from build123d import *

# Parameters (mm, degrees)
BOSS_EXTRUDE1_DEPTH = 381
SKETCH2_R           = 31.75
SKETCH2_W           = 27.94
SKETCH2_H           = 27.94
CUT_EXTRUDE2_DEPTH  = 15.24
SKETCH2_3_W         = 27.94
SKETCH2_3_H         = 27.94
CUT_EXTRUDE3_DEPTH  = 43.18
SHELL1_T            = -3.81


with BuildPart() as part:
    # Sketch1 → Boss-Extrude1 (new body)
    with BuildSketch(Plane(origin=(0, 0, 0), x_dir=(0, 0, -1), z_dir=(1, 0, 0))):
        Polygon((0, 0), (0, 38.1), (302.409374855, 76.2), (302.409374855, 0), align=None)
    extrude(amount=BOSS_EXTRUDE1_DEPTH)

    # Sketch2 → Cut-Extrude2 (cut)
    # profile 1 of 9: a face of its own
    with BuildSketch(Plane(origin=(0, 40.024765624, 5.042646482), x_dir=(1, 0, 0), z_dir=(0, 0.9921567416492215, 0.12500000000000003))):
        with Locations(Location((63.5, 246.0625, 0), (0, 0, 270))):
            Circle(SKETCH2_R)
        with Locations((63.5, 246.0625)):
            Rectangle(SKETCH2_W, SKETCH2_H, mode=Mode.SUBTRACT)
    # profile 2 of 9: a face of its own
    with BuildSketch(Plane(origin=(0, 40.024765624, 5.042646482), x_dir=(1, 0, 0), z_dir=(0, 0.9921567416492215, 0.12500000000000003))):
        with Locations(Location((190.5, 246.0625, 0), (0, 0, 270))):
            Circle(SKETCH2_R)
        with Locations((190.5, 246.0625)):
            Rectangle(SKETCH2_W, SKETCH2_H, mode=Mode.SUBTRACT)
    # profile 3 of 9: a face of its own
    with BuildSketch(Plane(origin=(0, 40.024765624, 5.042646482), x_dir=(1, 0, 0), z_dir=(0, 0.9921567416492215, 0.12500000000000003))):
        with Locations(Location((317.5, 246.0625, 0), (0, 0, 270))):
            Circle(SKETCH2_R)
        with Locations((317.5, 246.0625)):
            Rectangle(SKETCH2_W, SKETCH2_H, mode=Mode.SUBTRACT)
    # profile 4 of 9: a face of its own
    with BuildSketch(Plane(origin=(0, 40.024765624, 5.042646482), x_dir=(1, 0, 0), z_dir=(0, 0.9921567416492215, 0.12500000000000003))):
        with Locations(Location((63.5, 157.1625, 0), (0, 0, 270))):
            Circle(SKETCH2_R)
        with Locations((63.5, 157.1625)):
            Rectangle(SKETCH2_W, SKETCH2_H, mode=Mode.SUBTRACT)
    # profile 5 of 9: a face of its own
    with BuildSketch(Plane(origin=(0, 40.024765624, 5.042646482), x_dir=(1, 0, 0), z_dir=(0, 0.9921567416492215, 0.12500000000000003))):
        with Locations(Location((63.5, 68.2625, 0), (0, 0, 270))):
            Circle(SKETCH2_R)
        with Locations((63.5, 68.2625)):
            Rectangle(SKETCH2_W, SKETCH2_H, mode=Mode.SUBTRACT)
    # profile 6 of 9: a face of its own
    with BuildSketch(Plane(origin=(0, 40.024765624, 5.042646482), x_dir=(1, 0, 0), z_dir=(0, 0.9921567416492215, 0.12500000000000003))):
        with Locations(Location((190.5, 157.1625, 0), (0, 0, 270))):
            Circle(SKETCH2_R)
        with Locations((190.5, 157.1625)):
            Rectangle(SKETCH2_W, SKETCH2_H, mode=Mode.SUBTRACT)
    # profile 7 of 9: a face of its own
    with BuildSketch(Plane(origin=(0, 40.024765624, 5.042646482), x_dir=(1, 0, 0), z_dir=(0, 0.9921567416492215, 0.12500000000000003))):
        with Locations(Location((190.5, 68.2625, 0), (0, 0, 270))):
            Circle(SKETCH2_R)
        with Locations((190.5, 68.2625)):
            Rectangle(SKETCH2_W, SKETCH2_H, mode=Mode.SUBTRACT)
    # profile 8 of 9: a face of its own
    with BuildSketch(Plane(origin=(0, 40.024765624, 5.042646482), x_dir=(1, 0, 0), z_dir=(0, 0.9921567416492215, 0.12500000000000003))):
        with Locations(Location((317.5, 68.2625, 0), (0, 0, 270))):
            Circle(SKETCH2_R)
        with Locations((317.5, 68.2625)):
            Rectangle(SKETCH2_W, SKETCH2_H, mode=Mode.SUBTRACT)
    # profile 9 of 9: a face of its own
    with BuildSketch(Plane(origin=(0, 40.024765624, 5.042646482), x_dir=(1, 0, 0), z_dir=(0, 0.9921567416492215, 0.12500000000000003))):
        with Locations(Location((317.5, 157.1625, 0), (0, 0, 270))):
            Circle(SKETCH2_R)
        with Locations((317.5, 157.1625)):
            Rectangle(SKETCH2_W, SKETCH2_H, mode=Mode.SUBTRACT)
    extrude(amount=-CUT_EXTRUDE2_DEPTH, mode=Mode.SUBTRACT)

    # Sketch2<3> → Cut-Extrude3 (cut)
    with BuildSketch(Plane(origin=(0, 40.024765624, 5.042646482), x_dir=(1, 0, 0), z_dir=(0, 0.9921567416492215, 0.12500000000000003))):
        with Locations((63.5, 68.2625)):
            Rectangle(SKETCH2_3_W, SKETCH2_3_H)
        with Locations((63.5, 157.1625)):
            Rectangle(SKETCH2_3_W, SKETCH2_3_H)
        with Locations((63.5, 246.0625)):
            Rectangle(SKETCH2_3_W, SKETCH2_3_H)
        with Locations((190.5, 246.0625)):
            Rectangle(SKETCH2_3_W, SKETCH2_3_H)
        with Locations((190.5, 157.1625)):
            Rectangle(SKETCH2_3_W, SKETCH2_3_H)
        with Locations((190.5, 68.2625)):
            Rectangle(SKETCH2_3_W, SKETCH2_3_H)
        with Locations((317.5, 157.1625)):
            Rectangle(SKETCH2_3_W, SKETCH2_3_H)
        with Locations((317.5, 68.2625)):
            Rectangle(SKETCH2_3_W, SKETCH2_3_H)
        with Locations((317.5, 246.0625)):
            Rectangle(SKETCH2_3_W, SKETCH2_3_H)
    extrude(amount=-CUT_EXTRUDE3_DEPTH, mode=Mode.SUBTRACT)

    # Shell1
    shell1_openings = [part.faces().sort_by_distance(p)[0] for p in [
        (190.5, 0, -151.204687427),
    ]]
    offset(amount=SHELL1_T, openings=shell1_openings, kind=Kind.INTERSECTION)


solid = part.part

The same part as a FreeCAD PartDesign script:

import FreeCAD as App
import Part
import Sketcher
Q = App.Units.Quantity


def faces_at(feature, points):
    """Names of the faces that lie closest to the given points."""
    faces = feature.Shape.Faces
    near = lambda p: min(range(len(faces)), key=lambda i: faces[i].distToShape(Part.Vertex(*p))[0])
    return sorted({f"Face{near(p) + 1}" for p in points})


def add_polygon(sketch, points):
    """Adds a closed chain of lines whose ends are joined by coincident constraints."""
    first, n = sketch.GeometryCount, len(points)
    for a, b in zip(points, points[1:] + points[:1]):
        sketch.addGeometry(Part.LineSegment(App.Vector(*a, 0), App.Vector(*b, 0)), False)
    for i in range(n):
        sketch.addConstraint(Sketcher.Constraint("Coincident", first + i, 2, first + (i + 1) % n, 1))

doc = App.newDocument("Part")
body = doc.addObject("PartDesign::Body", "Body")

sketch1 = doc.addObject("Sketcher::SketchObject", "Sketch")
body.addObject(sketch1)
sketch1.AttachmentSupport = (doc.YZ_Plane, [""])
sketch1.MapMode = "FlatFace"
add_polygon(sketch1, [(38, 0), (0, 0), (0, -302), (76, -302)])
sketch1.addConstraint([
    Sketcher.Constraint("Horizontal", 0),
    Sketcher.Constraint("Vertical", 1),
    Sketcher.Constraint("Horizontal", 2),
    Sketcher.Constraint("Coincident", 0, 2, -1, 1),
    Sketcher.Constraint("DistanceX", 2, 1, 2, 2, Q("3 in")),
    Sketcher.Constraint("Distance", 3, Q("12 in")),
    Sketcher.Constraint("DistanceX", 0, 2, 0, 1, Q("1.5 in")),
])
pad1 = doc.addObject("PartDesign::Pad", "Pad")
body.addObject(pad1)
pad1.Profile = sketch1
pad1.Length = Q("15 in")

sketch2 = doc.addObject("Sketcher::SketchObject", "Sketch001")
body.addObject(sketch2)
sketch2.Placement = App.Placement(App.Vector(0, 40.024766, 5.042646), App.Rotation(App.Vector(1, 0, 0), App.Vector(0, 0.125, -0.992156742), App.Vector(0, 0.992156742, 0.125), "ZXY"))
sketch2.addGeometry(Part.Circle(App.Vector(64, 246, 0), App.Vector(0, 0, 1), 32), False)
add_polygon(sketch2, [(77, 232), (50, 232), (50, 260), (77, 260)])
sketch2.addGeometry(Part.Circle(App.Vector(190, 246, 0), App.Vector(0, 0, 1), 32), False)
add_polygon(sketch2, [(204, 232), (177, 232), (177, 260), (204, 260)])
sketch2.addGeometry(Part.Circle(App.Vector(318, 246, 0), App.Vector(0, 0, 1), 32), False)
add_polygon(sketch2, [(331, 232), (304, 232), (304, 260), (331, 260)])
sketch2.addGeometry(Part.Circle(App.Vector(64, 157, 0), App.Vector(0, 0, 1), 32), False)
add_polygon(sketch2, [(77, 143), (50, 143), (50, 171), (77, 171)])
sketch2.addGeometry(Part.Circle(App.Vector(64, 68, 0), App.Vector(0, 0, 1), 32), False)
add_polygon(sketch2, [(77, 54), (50, 54), (50, 82), (77, 82)])
sketch2.addGeometry(Part.Circle(App.Vector(190, 157, 0), App.Vector(0, 0, 1), 32), False)
add_polygon(sketch2, [(204, 143), (177, 143), (177, 171), (204, 171)])
sketch2.addGeometry(Part.Circle(App.Vector(190, 68, 0), App.Vector(0, 0, 1), 32), False)
add_polygon(sketch2, [(204, 54), (177, 54), (177, 82), (204, 82)])
sketch2.addGeometry(Part.Circle(App.Vector(318, 68, 0), App.Vector(0, 0, 1), 32), False)
add_polygon(sketch2, [(331, 54), (304, 54), (304, 82), (331, 82)])
sketch2.addGeometry(Part.Circle(App.Vector(318, 157, 0), App.Vector(0, 0, 1), 32), False)
add_polygon(sketch2, [(331, 143), (304, 143), (304, 171), (331, 171)])
sketch2.addConstraint([
    Sketcher.Constraint("Horizontal", 1),
    Sketcher.Constraint("Vertical", 2),
    Sketcher.Constraint("Horizontal", 3),
    Sketcher.Constraint("Vertical", 4),
    Sketcher.Constraint("Horizontal", 6),
    Sketcher.Constraint("Vertical", 7),
    Sketcher.Constraint("Horizontal", 8),
    Sketcher.Constraint("Vertical", 9),
    Sketcher.Constraint("Horizontal", 11),
    Sketcher.Constraint("Vertical", 12),
    Sketcher.Constraint("Horizontal", 13),
    Sketcher.Constraint("Vertical", 14),
    Sketcher.Constraint("Horizontal", 16),
    Sketcher.Constraint("Vertical", 17),
    Sketcher.Constraint("Horizontal", 18),
    Sketcher.Constraint("Vertical", 19),
    Sketcher.Constraint("Horizontal", 21),
    Sketcher.Constraint("Vertical", 22),
    Sketcher.Constraint("Horizontal", 23),
    Sketcher.Constraint("Vertical", 24),
    Sketcher.Constraint("Horizontal", 26),
    Sketcher.Constraint("Vertical", 27),
    Sketcher.Constraint("Horizontal", 28),
    Sketcher.Constraint("Vertical", 29),
    Sketcher.Constraint("Horizontal", 31),
    Sketcher.Constraint("Vertical", 32),
    Sketcher.Constraint("Horizontal", 33),
    Sketcher.Constraint("Vertical", 34),
    Sketcher.Constraint("Horizontal", 36),
    Sketcher.Constraint("Vertical", 37),
    Sketcher.Constraint("Horizontal", 38),
    Sketcher.Constraint("Vertical", 39),
    Sketcher.Constraint("Horizontal", 41),
    Sketcher.Constraint("Vertical", 42),
    Sketcher.Constraint("Horizontal", 43),
    Sketcher.Constraint("Vertical", 44),
    Sketcher.Constraint("Equal", 0, 5),
    Sketcher.Constraint("Equal", 5, 10),
    Sketcher.Constraint("Equal", 10, 15),
    Sketcher.Constraint("Equal", 15, 20),
    Sketcher.Constraint("Equal", 20, 25),
    Sketcher.Constraint("Equal", 25, 30),
    Sketcher.Constraint("Equal", 30, 35),
    Sketcher.Constraint("Equal", 35, 40),
    Sketcher.Constraint("Horizontal", 0, 3, 5, 3),
    Sketcher.Constraint("Horizontal", 5, 3, 10, 3),
    Sketcher.Constraint("Horizontal", 15, 3, 25, 3),
    Sketcher.Constraint("Horizontal", 20, 3, 30, 3),
    Sketcher.Constraint("Horizontal", 30, 3, 35, 3),
    Sketcher.Constraint("Horizontal", 25, 3, 40, 3),
    Sketcher.Constraint("Horizontal", 4, 2, 6, 2),
    Sketcher.Constraint("Horizontal", 3, 2, 7, 2),
    Sketcher.Constraint("Horizontal", 9, 2, 11, 2),
    Sketcher.Constraint("Horizontal", 8, 2, 12, 2),
    Sketcher.Constraint("Horizontal", 19, 2, 26, 2),
    Sketcher.Constraint("Horizontal", 18, 2, 27, 2),
    Sketcher.Constraint("Horizontal", 24, 2, 31, 2),
    Sketcher.Constraint("Horizontal", 23, 2, 32, 2),
    Sketcher.Constraint("Horizontal", 34, 2, 36, 2),
    Sketcher.Constraint("Horizontal", 33, 2, 37, 2),
    Sketcher.Constraint("Horizontal", 29, 2, 41, 2),
    Sketcher.Constraint("Horizontal", 28, 2, 42, 2),
    Sketcher.Constraint("Vertical", 0, 3, 15, 3),
    Sketcher.Constraint("Vertical", 15, 3, 20, 3),
    Sketcher.Constraint("Vertical", 5, 3, 25, 3),
    Sketcher.Constraint("Vertical", 25, 3, 30, 3),
    Sketcher.Constraint("Vertical", 10, 3, 35, 3),
    Sketcher.Constraint("Vertical", 35, 3, 40, 3),
    Sketcher.Constraint("Vertical", 2, 2, 16, 2),
    Sketcher.Constraint("Vertical", 4, 2, 18, 2),
    Sketcher.Constraint("Vertical", 17, 2, 21, 2),
    Sketcher.Constraint("Vertical", 19, 2, 23, 2),
    Sketcher.Constraint("Vertical", 7, 2, 26, 2),
    Sketcher.Constraint("Vertical", 9, 2, 28, 2),
    Sketcher.Constraint("Vertical", 27, 2, 31, 2),
    Sketcher.Constraint("Vertical", 29, 2, 33, 2),
    Sketcher.Constraint("Vertical", 12, 2, 36, 2),
    Sketcher.Constraint("Vertical", 14, 2, 38, 2),
    Sketcher.Constraint("Vertical", 37, 2, 41, 2),
    Sketcher.Constraint("Vertical", 39, 2, 43, 2),
    Sketcher.Constraint("Equal", 3, 6),
    Sketcher.Constraint("Equal", 8, 11),
    Sketcher.Constraint("Equal", 43, 2),
    Sketcher.Constraint("Equal", 14, 17),
    Sketcher.Constraint("Equal", 19, 22),
    Sketcher.Constraint("Diameter", 0, Q("2.5 in")),
    Sketcher.Constraint("DistanceX", 1, 2, 1, 1, Q("1.1 in")),
    Sketcher.Constraint("DistanceX", 0, 3, 5, 3, Q("5 in")),
    Sketcher.Constraint("DistanceX", 5, 3, 10, 3, Q("5 in")),
    Sketcher.Constraint("DistanceY", 20, 3, 0, 3, Q("7 in")),
    Sketcher.Constraint("DistanceX", 8, 2, 13, 2, Q("5 in")),
    Sketcher.Constraint("DistanceX", -1, 1, 0, 3, Q("2.5 in")),
    Sketcher.Constraint("DistanceY", 15, 3, 0, 3, Q("3.5 in")),
    Sketcher.Constraint("DistanceX", 4, 2, 6, 2, Q("3.9 in")),
    Sketcher.Constraint("DistanceY", 16, 2, 1, 2, Q("3.5 in")),
    Sketcher.Constraint("DistanceY", 21, 2, 16, 2, Q("3.5 in")),
    Sketcher.Constraint("DistanceX", -1, 1, 1, 2, Q("1.95 in")),
    Sketcher.Constraint("DistanceY", 1, 2, 0, 3, Q("0.55 in")),
    Sketcher.Constraint("DistanceY", -1, 1, 0, 3, Q("9.6875 in")),
])
pocket1 = doc.addObject("PartDesign::Pocket", "Pocket")
body.addObject(pocket1)
pocket1.Profile = sketch2
pocket1.Length = Q("0.6 in")

sketch3 = doc.addObject("Sketcher::SketchObject", "Sketch002")
body.addObject(sketch3)
sketch3.Placement = App.Placement(App.Vector(0, 40.024766, 5.042646), App.Rotation(App.Vector(1, 0, 0), App.Vector(0, 0.125, -0.992156742), App.Vector(0, 0.992156742, 0.125), "ZXY"))
add_polygon(sketch3, [(50, 82), (50, 54), (77, 54), (77, 82)])
add_polygon(sketch3, [(50, 171), (50, 143), (77, 143), (77, 171)])
add_polygon(sketch3, [(50, 260), (50, 232), (77, 232), (77, 260)])
add_polygon(sketch3, [(177, 260), (177, 232), (204, 232), (204, 260)])
add_polygon(sketch3, [(177, 171), (177, 143), (204, 143), (204, 171)])
add_polygon(sketch3, [(177, 82), (177, 54), (204, 54), (204, 82)])
add_polygon(sketch3, [(304, 171), (304, 143), (331, 143), (331, 171)])
add_polygon(sketch3, [(304, 82), (304, 54), (331, 54), (331, 82)])
add_polygon(sketch3, [(304, 260), (304, 232), (331, 232), (331, 260)])
sketch3.addConstraint([
    Sketcher.Constraint("Vertical", 0),
    Sketcher.Constraint("Horizontal", 1),
    Sketcher.Constraint("Vertical", 2),
    Sketcher.Constraint("Horizontal", 3),
    Sketcher.Constraint("Vertical", 4),
    Sketcher.Constraint("Horizontal", 5),
    Sketcher.Constraint("Vertical", 6),
    Sketcher.Constraint("Horizontal", 7),
    Sketcher.Constraint("Vertical", 8),
    Sketcher.Constraint("Horizontal", 9),
    Sketcher.Constraint("Vertical", 10),
    Sketcher.Constraint("Horizontal", 11),
    Sketcher.Constraint("Vertical", 12),
    Sketcher.Constraint("Horizontal", 13),
    Sketcher.Constraint("Vertical", 14),
    Sketcher.Constraint("Horizontal", 15),
    Sketcher.Constraint("Vertical", 16),
    Sketcher.Constraint("Horizontal", 17),
    Sketcher.Constraint("Vertical", 18),
    Sketcher.Constraint("Horizontal", 19),
    Sketcher.Constraint("Vertical", 20),
    Sketcher.Constraint("Horizontal", 21),
    Sketcher.Constraint("Vertical", 22),
    Sketcher.Constraint("Horizontal", 23),
    Sketcher.Constraint("Vertical", 24),
    Sketcher.Constraint("Horizontal", 25),
    Sketcher.Constraint("Vertical", 26),
    Sketcher.Constraint("Horizontal", 27),
    Sketcher.Constraint("Vertical", 28),
    Sketcher.Constraint("Horizontal", 29),
    Sketcher.Constraint("Vertical", 30),
    Sketcher.Constraint("Horizontal", 31),
    Sketcher.Constraint("Vertical", 32),
    Sketcher.Constraint("Horizontal", 33),
    Sketcher.Constraint("Vertical", 34),
    Sketcher.Constraint("Horizontal", 35),
    Sketcher.Constraint("Horizontal", 9, 2, 12, 2),
    Sketcher.Constraint("Horizontal", 11, 2, 14, 2),
    Sketcher.Constraint("Horizontal", 5, 2, 16, 2),
    Sketcher.Constraint("Horizontal", 7, 2, 18, 2),
    Sketcher.Constraint("Horizontal", 1, 2, 20, 2),
    Sketcher.Constraint("Horizontal", 3, 2, 22, 2),
    Sketcher.Constraint("Horizontal", 17, 2, 24, 2),
    Sketcher.Constraint("Horizontal", 19, 2, 26, 2),
    Sketcher.Constraint("Horizontal", 21, 2, 28, 2),
    Sketcher.Constraint("Horizontal", 23, 2, 30, 2),
    Sketcher.Constraint("Horizontal", 13, 2, 32, 2),
    Sketcher.Constraint("Horizontal", 15, 2, 34, 2),
    Sketcher.Constraint("Vertical", 3, 2, 4, 2),
    Sketcher.Constraint("Vertical", 2, 2, 5, 2),
    Sketcher.Constraint("Vertical", 7, 2, 8, 2),
    Sketcher.Constraint("Vertical", 6, 2, 9, 2),
    Sketcher.Constraint("Vertical", 15, 2, 16, 2),
    Sketcher.Constraint("Vertical", 14, 2, 17, 2),
    Sketcher.Constraint("Vertical", 19, 2, 20, 2),
    Sketcher.Constraint("Vertical", 18, 2, 21, 2),
    Sketcher.Constraint("Vertical", 27, 2, 28, 2),
    Sketcher.Constraint("Vertical", 26, 2, 29, 2),
    Sketcher.Constraint("Vertical", 31, 2, 32, 2),
    Sketcher.Constraint("Vertical", 30, 2, 33, 2),
    Sketcher.Constraint("Equal", 11, 13),
    Sketcher.Constraint("Equal", 23, 25),
    Sketcher.Constraint("Equal", 35, 0),
    Sketcher.Constraint("Equal", 2, 4),
    Sketcher.Constraint("Equal", 6, 8),
    Sketcher.Constraint("DistanceX", 1, 1, 1, 2, Q("1.1 in")),
    Sketcher.Constraint("DistanceX", 8, 2, 12, 2, Q("5 in")),
    Sketcher.Constraint("DistanceX", 16, 2, 24, 2, Q("5 in")),
    Sketcher.Constraint("DistanceY", 3, 2, 4, 2, Q("2.4 in")),
    Sketcher.Constraint("DistanceY", 7, 2, 8, 2, Q("2.4 in")),
    Sketcher.Constraint("DistanceX", -1, 1, 0, 2, Q("1.95 in")),
    Sketcher.Constraint("DistanceY", -1, 1, 0, 2, Q("2.1375 in")),
])
pocket2 = doc.addObject("PartDesign::Pocket", "Pocket001")
body.addObject(pocket2)
pocket2.Profile = sketch3
pocket2.Length = Q("1.7 in")
doc.recompute()

thickness = doc.addObject("PartDesign::Thickness", "Thickness")
body.addObject(thickness)
thickness.Base = (pocket2, faces_at(pocket2, [(190.5, 0, -151.205)]))
thickness.Value = Q("0.15 in")
thickness.Reversed = True
thickness.Join = "Intersection"

doc.recompute()
